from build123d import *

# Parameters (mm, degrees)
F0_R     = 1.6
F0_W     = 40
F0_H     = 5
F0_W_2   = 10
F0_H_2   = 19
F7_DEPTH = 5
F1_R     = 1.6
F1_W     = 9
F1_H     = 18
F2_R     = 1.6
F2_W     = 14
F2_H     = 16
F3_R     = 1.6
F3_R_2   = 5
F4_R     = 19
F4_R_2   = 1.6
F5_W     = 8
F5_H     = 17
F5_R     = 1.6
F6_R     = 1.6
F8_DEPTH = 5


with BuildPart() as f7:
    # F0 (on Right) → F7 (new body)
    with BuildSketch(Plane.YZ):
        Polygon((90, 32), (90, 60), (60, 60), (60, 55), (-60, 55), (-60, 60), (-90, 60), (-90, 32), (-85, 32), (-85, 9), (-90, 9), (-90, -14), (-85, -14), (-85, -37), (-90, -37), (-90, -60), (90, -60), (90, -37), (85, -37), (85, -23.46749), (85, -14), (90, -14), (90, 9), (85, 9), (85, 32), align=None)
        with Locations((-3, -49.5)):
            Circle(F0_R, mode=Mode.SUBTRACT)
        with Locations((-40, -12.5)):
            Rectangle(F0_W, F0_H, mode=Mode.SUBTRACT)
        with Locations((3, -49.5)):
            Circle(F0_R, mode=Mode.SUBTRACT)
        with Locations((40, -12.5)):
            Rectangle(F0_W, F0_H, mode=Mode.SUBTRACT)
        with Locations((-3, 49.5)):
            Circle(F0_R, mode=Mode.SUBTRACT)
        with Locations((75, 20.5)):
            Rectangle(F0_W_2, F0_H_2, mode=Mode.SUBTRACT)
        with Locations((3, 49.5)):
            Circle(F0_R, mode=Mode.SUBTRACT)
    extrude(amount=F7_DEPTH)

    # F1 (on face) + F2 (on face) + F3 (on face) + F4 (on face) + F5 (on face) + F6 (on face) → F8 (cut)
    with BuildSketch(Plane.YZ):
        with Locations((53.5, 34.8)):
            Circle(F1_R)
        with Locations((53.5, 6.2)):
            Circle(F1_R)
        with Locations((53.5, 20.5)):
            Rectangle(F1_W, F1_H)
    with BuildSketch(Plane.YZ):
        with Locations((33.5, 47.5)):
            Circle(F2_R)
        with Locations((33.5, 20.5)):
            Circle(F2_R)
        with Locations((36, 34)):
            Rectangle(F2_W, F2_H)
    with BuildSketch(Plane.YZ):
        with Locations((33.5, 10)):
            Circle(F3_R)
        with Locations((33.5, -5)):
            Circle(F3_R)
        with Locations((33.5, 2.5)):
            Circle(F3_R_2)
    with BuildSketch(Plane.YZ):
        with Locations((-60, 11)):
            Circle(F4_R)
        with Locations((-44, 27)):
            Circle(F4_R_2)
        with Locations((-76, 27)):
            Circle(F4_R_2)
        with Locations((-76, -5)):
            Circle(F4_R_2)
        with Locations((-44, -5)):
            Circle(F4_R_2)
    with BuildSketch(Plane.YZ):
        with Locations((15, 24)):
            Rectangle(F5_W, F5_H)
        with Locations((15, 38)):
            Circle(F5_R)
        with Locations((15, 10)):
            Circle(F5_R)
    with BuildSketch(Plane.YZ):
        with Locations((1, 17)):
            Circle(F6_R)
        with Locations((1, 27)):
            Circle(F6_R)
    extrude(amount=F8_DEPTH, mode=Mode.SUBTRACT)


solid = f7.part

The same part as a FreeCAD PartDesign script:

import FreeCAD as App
import Part
import Sketcher
from FreeCAD import Vector
Q = App.Units.Quantity

doc = App.newDocument("Part")
body = doc.addObject("PartDesign::Body", "Body")

sketch1 = body.newObject("Sketcher::SketchObject", "Sketch")
sketch1.AttachmentSupport = (doc.getObject("YZ_Plane"), [""])
sketch1.MapMode = "FlatFace"
sketch1.addGeometry([
    Part.LineSegment(Vector(90, 32, 0), Vector(90, 60, 0)),
    Part.LineSegment(Vector(90, 60, 0), Vector(60, 60, 0)),
    Part.LineSegment(Vector(60, 60, 0), Vector(60, 55, 0)),
    Part.LineSegment(Vector(60, 55, 0), Vector(-60, 55, 0)),
    Part.LineSegment(Vector(-60, 55, 0), Vector(-60, 60, 0)),
    Part.LineSegment(Vector(-60, 60, 0), Vector(-90, 60, 0)),
    Part.LineSegment(Vector(-90, 60, 0), Vector(-90, 32, 0)),
    Part.LineSegment(Vector(-90, 32, 0), Vector(-85, 32, 0)),
    Part.LineSegment(Vector(-85, 32, 0), Vector(-85, 9, 0)),
    Part.LineSegment(Vector(-85, 9, 0), Vector(-90, 9, 0)),
    Part.LineSegment(Vector(-90, 9, 0), Vector(-90, -14, 0)),
    Part.LineSegment(Vector(-90, -14, 0), Vector(-85, -14, 0)),
    Part.LineSegment(Vector(-85, -14, 0), Vector(-85, -37, 0)),
    Part.LineSegment(Vector(-85, -37, 0), Vector(-90, -37, 0)),
    Part.LineSegment(Vector(-90, -37, 0), Vector(-90, -60, 0)),
    Part.LineSegment(Vector(-90, -60, 0), Vector(90, -60, 0)),
    Part.LineSegment(Vector(90, -60, 0), Vector(90, -37, 0)),
    Part.LineSegment(Vector(90, -37, 0), Vector(85, -37, 0)),
    Part.LineSegment(Vector(85, -37, 0), Vector(85, -14, 0)),
    Part.LineSegment(Vector(85, -14, 0), Vector(90, -14, 0)),
    Part.LineSegment(Vector(90, -14, 0), Vector(90, 9, 0)),
    Part.LineSegment(Vector(90, 9, 0), Vector(85, 9, 0)),
    Part.LineSegment(Vector(85, 9, 0), Vector(85, 32, 0)),
    Part.LineSegment(Vector(85, 32, 0), Vector(90, 32, 0)),
    Part.Circle(Vector(-3, -49.5, 0), Vector(0, 0, 1), 1.6),
    Part.Circle(Vector(3, -49.5, 0), Vector(0, 0, 1), 1.6),
    Part.LineSegment(Vector(-20, -15, 0), Vector(-60, -15, 0)),
    Part.LineSegment(Vector(-60, -15, 0), Vector(-60, -10, 0)),
    Part.LineSegment(Vector(-60, -10, 0), Vector(-20, -10, 0)),
    Part.LineSegment(Vector(-20, -10, 0), Vector(-20, -15, 0)),
    Part.LineSegment(Vector(60, -15, 0), Vector(20, -15, 0)),
    Part.LineSegment(Vector(20, -15, 0), Vector(20, -10, 0)),
    Part.LineSegment(Vector(20, -10, 0), Vector(60, -10, 0)),
    Part.LineSegment(Vector(60, -10, 0), Vector(60, -15, 0)),
    Part.Circle(Vector(-3, 49.5, 0), Vector(0, 0, 1), 1.6),
    Part.Circle(Vector(3, 49.5, 0), Vector(0, 0, 1), 1.6),
    Part.LineSegment(Vector(80, 11, 0), Vector(70, 11, 0)),
    Part.LineSegment(Vector(70, 11, 0), Vector(70, 30, 0)),
    Part.LineSegment(Vector(70, 30, 0), Vector(80, 30, 0)),
    Part.LineSegment(Vector(80, 30, 0), Vector(80, 11, 0)),
], False)
sketch1.addConstraint([
    Sketcher.Constraint("Coincident", 0, 2, 1, 1),
    Sketcher.Constraint("Coincident", 1, 2, 2, 1),
    Sketcher.Constraint("Coincident", 2, 2, 3, 1),
    Sketcher.Constraint("Coincident", 3, 2, 4, 1),
    Sketcher.Constraint("Coincident", 4, 2, 5, 1),
    Sketcher.Constraint("Coincident", 5, 2, 6, 1),
    Sketcher.Constraint("Coincident", 6, 2, 7, 1),
    Sketcher.Constraint("Coincident", 7, 2, 8, 1),
    Sketcher.Constraint("Coincident", 8, 2, 9, 1),
    Sketcher.Constraint("Coincident", 9, 2, 10, 1),
    Sketcher.Constraint("Coincident", 10, 2, 11, 1),
    Sketcher.Constraint("Coincident", 11, 2, 12, 1),
    Sketcher.Constraint("Coincident", 12, 2, 13, 1),
    Sketcher.Constraint("Coincident", 13, 2, 14, 1),
    Sketcher.Constraint("Coincident", 14, 2, 15, 1),
    Sketcher.Constraint("Coincident", 15, 2, 16, 1),
    Sketcher.Constraint("Coincident", 16, 2, 17, 1),
    Sketcher.Constraint("Coincident", 17, 2, 18, 1),
    Sketcher.Constraint("Coincident", 18, 2, 19, 1),
    Sketcher.Constraint("Coincident", 19, 2, 20, 1),
    Sketcher.Constraint("Coincident", 20, 2, 21, 1),
    Sketcher.Constraint("Coincident", 21, 2, 22, 1),
    Sketcher.Constraint("Coincident", 22, 2, 23, 1),
    Sketcher.Constraint("Coincident", 23, 2, 0, 1),
    Sketcher.Constraint("Coincident", 26, 2, 27, 1),
    Sketcher.Constraint("Coincident", 27, 2, 28, 1),
    Sketcher.Constraint("Coincident", 28, 2, 29, 1),
    Sketcher.Constraint("Coincident", 29, 2, 26, 1),
    Sketcher.Constraint("Coincident", 30, 2, 31, 1),
    Sketcher.Constraint("Coincident", 31, 2, 32, 1),
    Sketcher.Constraint("Coincident", 32, 2, 33, 1),
    Sketcher.Constraint("Coincident", 33, 2, 30, 1),
    Sketcher.Constraint("Coincident", 36, 2, 37, 1),
    Sketcher.Constraint("Coincident", 37, 2, 38, 1),
    Sketcher.Constraint("Coincident", 38, 2, 39, 1),
    Sketcher.Constraint("Coincident", 39, 2, 36, 1),
    Sketcher.Constraint("Vertical", 0),
    Sketcher.Constraint("Horizontal", 1),
    Sketcher.Constraint("Vertical", 2),
    Sketcher.Constraint("Horizontal", 3),
    Sketcher.Constraint("Vertical", 4),
    Sketcher.Constraint("Horizontal", 5),
    Sketcher.Constraint("Vertical", 6),
    Sketcher.Constraint("Horizontal", 7),
    Sketcher.Constraint("Vertical", 8),
    Sketcher.Constraint("Horizontal", 9),
    Sketcher.Constraint("Vertical", 10),
    Sketcher.Constraint("Horizontal", 11),
    Sketcher.Constraint("Vertical", 12),
    Sketcher.Constraint("Horizontal", 13),
    Sketcher.Constraint("Vertical", 14),
    Sketcher.Constraint("Horizontal", 15),
    Sketcher.Constraint("Vertical", 16),
    Sketcher.Constraint("Horizontal", 17),
    Sketcher.Constraint("Vertical", 18),
    Sketcher.Constraint("Horizontal", 19),
    Sketcher.Constraint("Vertical", 20),
    Sketcher.Constraint("Horizontal", 21),
    Sketcher.Constraint("Vertical", 22),
    Sketcher.Constraint("Horizontal", 23),
    Sketcher.Constraint("Horizontal", 26),
    Sketcher.Constraint("Vertical", 27),
    Sketcher.Constraint("Horizontal", 28),
    Sketcher.Constraint("Vertical", 29),
    Sketcher.Constraint("Horizontal", 30),
    Sketcher.Constraint("Vertical", 31),
    Sketcher.Constraint("Horizontal", 32),
    Sketcher.Constraint("Vertical", 33),
    Sketcher.Constraint("Horizontal", 36),
    Sketcher.Constraint("Vertical", 37),
    Sketcher.Constraint("Horizontal", 38),
    Sketcher.Constraint("Vertical", 39),
    Sketcher.Constraint("Equal", 24, 25),
    Sketcher.Constraint("Equal", 25, 34),
    Sketcher.Constraint("Equal", 34, 35),
    Sketcher.Constraint("Symmetric", 25, 3, 34, 3, -1, 1),
    Sketcher.Constraint("Symmetric", 24, 3, 35, 3, -1, 1),
    Sketcher.Constraint("Symmetric", 0, 2, 14, 2, -1, 1),
    Sketcher.Constraint("Symmetric", 5, 2, 15, 2, -1, 1),
    Sketcher.Constraint("Symmetric", 24, 3, 25, 3, -2),
    Sketcher.Constraint("Symmetric", 13, 2, 16, 2, -2),
    Sketcher.Constraint("Symmetric", 11, 2, 18, 2, -2),
    Sketcher.Constraint("Symmetric", 9, 2, 20, 2, -2),
    Sketcher.Constraint("Symmetric", 7, 2, 22, 2, -2),
    Sketcher.Constraint("Symmetric", 29, 2, 30, 2, -2),
    Sketcher.Constraint("Symmetric", 27, 2, 32, 2, -2),
    Sketcher.Constraint("Vertical", 6, 2, 9, 2),
    Sketcher.Constraint("Vertical", 8, 2, 11, 2),
    Sketcher.Constraint("Vertical", 4, 2, 26, 2),
    Sketcher.Constraint("Vertical", 2, 2, 32, 2),
    Sketcher.Constraint("Equal", 23, 2),
    Sketcher.Constraint("Equal", 8, 10),
    Sketcher.Constraint("Equal", 10, 12),
    Sketcher.Constraint("Equal", 12, 14),
    Sketcher.Constraint("Equal", 4, 27),
    Sketcher.Constraint("Diameter", 24, Q("3.2 mm")),
    Sketcher.Constraint("DistanceX", 1, 2, 1, 1, Q("30 mm")),
    Sketcher.Constraint("DistanceX", 3, 2, 3, 1, Q("120 mm")),
    Sketcher.Constraint("DistanceX", 7, 1, 7, 2, Q("5 mm")),
    Sketcher.Constraint("DistanceX", 26, 2, 26, 1, Q("40 mm")),
    Sketcher.Constraint("DistanceX", 36, 2, 36, 1, Q("10 mm")),
    Sketcher.Constraint("DistanceY", 0, 1, 0, 2, Q("28 mm")),
    Sketcher.Constraint("DistanceY", 8, 2, 8, 1, Q("23 mm")),
    Sketcher.Constraint("DistanceY", 37, 1, 37, 2, Q("19 mm")),
    Sketcher.Constraint("DistanceX", 24, 3, -1, 1, Q("3 mm")),
    Sketcher.Constraint("DistanceY", 26, 2, -1, 1, Q("15 mm")),
    Sketcher.Constraint("DistanceX", -1, 1, 36, 2, Q("70 mm")),
    Sketcher.Constraint("DistanceY", -1, 1, 36, 2, Q("11 mm")),
    Sketcher.Constraint("DistanceY", 24, 3, 34, 3, Q("99 mm")),
])
pad1 = body.newObject("PartDesign::Pad", "Pad")
pad1.Profile = sketch1
pad1.Length = 5

sketch2 = body.newObject("Sketcher::SketchObject", "Sketch001")
sketch2.AttachmentSupport = (doc.getObject("YZ_Plane"), [""])
sketch2.MapMode = "FlatFace"
sketch2.addGeometry([
    Part.Circle(Vector(53.5, 34.8, 0), Vector(0, 0, 1), 1.6),
    Part.Circle(Vector(53.5, 6.2, 0), Vector(0, 0, 1), 1.6),
    Part.LineSegment(Vector(49, 29.5, 0), Vector(49, 11.5, 0)),
    Part.LineSegment(Vector(49, 11.5, 0), Vector(58, 11.5, 0)),
    Part.LineSegment(Vector(58, 11.5, 0), Vector(58, 29.5, 0)),
    Part.LineSegment(Vector(58, 29.5, 0), Vector(49, 29.5, 0)),
    Part.Circle(Vector(33.5, 47.5, 0), Vector(0, 0, 1), 1.6),
    Part.Circle(Vector(33.5, 20.5, 0), Vector(0, 0, 1), 1.6),
    Part.LineSegment(Vector(29, 42, 0), Vector(29, 26, 0)),
    Part.LineSegment(Vector(29, 26, 0), Vector(43, 26, 0)),
    Part.LineSegment(Vector(43, 26, 0), Vector(43, 42, 0)),
    Part.LineSegment(Vector(43, 42, 0), Vector(29, 42, 0)),
    Part.Circle(Vector(33.5, 10, 0), Vector(0, 0, 1), 1.6),
    Part.Circle(Vector(33.5, -5, 0), Vector(0, 0, 1), 1.6),
    Part.Circle(Vector(33.5, 2.5, 0), Vector(0, 0, 1), 5),
    Part.Circle(Vector(-60, 11, 0), Vector(0, 0, 1), 19),
    Part.Circle(Vector(-44, 27, 0), Vector(0, 0, 1), 1.6),
    Part.Circle(Vector(-76, 27, 0), Vector(0, 0, 1), 1.6),
    Part.Circle(Vector(-76, -5, 0), Vector(0, 0, 1), 1.6),
    Part.Circle(Vector(-44, -5, 0), Vector(0, 0, 1), 1.6),
    Part.LineSegment(Vector(11, 32.5, 0), Vector(11, 15.5, 0)),
    Part.LineSegment(Vector(11, 15.5, 0), Vector(19, 15.5, 0)),
    Part.LineSegment(Vector(19, 15.5, 0), Vector(19, 32.5, 0)),
    Part.LineSegment(Vector(19, 32.5, 0), Vector(11, 32.5, 0)),
    Part.Circle(Vector(15, 38, 0), Vector(0, 0, 1), 1.6),
    Part.Circle(Vector(15, 10, 0), Vector(0, 0, 1), 1.6),
    Part.Circle(Vector(1, 17, 0), Vector(0, 0, 1), 1.6),
    Part.Circle(Vector(1, 27, 0), Vector(0, 0, 1), 1.6),
], False)
sketch2.addConstraint([
    Sketcher.Constraint("Coincident", 2, 2, 3, 1),
    Sketcher.Constraint("Coincident", 3, 2, 4, 1),
    Sketcher.Constraint("Coincident", 4, 2, 5, 1),
    Sketcher.Constraint("Coincident", 5, 2, 2, 1),
    Sketcher.Constraint("Coincident", 8, 2, 9, 1),
    Sketcher.Constraint("Coincident", 9, 2, 10, 1),
    Sketcher.Constraint("Coincident", 10, 2, 11, 1),
    Sketcher.Constraint("Coincident", 11, 2, 8, 1),
    Sketcher.Constraint("Coincident", 20, 2, 21, 1),
    Sketcher.Constraint("Coincident", 21, 2, 22, 1),
    Sketcher.Constraint("Coincident", 22, 2, 23, 1),
    Sketcher.Constraint("Coincident", 23, 2, 20, 1),
    Sketcher.Constraint("Vertical", 2),
    Sketcher.Constraint("Horizontal", 3),
    Sketcher.Constraint("Vertical", 4),
    Sketcher.Constraint("Horizontal", 5),
    Sketcher.Constraint("Vertical", 8),
    Sketcher.Constraint("Horizontal", 9),
    Sketcher.Constraint("Vertical", 10),
    Sketcher.Constraint("Horizontal", 11),
    Sketcher.Constraint("Vertical", 20),
    Sketcher.Constraint("Horizontal", 21),
    Sketcher.Constraint("Vertical", 22),
    Sketcher.Constraint("Horizontal", 23),
    Sketcher.Constraint("Equal", 0, 1),
    Sketcher.Constraint("Equal", 1, 6),
    Sketcher.Constraint("Equal", 6, 7),
    Sketcher.Constraint("Equal", 7, 12),
    Sketcher.Constraint("Equal", 12, 13),
    Sketcher.Constraint("Equal", 13, 16),
    Sketcher.Constraint("Equal", 16, 17),
    Sketcher.Constraint("Equal", 17, 18),
    Sketcher.Constraint("Equal", 18, 19),
    Sketcher.Constraint("Equal", 19, 24),
    Sketcher.Constraint("Equal", 24, 25),
    Sketcher.Constraint("Equal", 25, 26),
    Sketcher.Constraint("Equal", 26, 27),
    Sketcher.Constraint("Horizontal", 16, 3, 17, 3),
    Sketcher.Constraint("Horizontal", 13, 3, 18, 3),
    Sketcher.Constraint("Horizontal", 18, 3, 19, 3),
    Sketcher.Constraint("Horizontal", 12, 3, 25, 3),
    Sketcher.Constraint("Horizontal", 17, 3, 27, 3),
    Sketcher.Constraint("Vertical", 0, 3, 1, 3),
    Sketcher.Constraint("Vertical", 6, 3, 7, 3),
    Sketcher.Constraint("Vertical", 7, 3, 12, 3),
    Sketcher.Constraint("Vertical", 12, 3, 13, 3),
    Sketcher.Constraint("Vertical", 13, 3, 14, 3),
    Sketcher.Constraint("Vertical", 17, 3, 18, 3),
    Sketcher.Constraint("Vertical", 16, 3, 19, 3),
    Sketcher.Constraint("Vertical", 24, 3, 25, 3),
    Sketcher.Constraint("Vertical", 26, 3, 27, 3),
    Sketcher.Constraint("Diameter", 14, Q("10 mm")),
    Sketcher.Constraint("Diameter", 15, Q("38 mm")),
    Sketcher.Constraint("Diameter", 0, Q("3.2 mm")),
    Sketcher.Constraint("DistanceX", 3, 1, 3, 2, Q("9 mm")),
    Sketcher.Constraint("DistanceX", 9, 1, 9, 2, Q("14 mm")),
    Sketcher.Constraint("DistanceX", 21, 1, 21, 2, Q("8 mm")),
    Sketcher.Constraint("DistanceY", 2, 2, 2, 1, Q("18 mm")),
    Sketcher.Constraint("DistanceY", 8, 2, 8, 1, Q("16 mm")),
    Sketcher.Constraint("DistanceY", 20, 2, 20, 1, Q("17 mm")),
    Sketcher.Constraint("DistanceY", -1, 1, 12, 3, Q("10 mm")),
    Sketcher.Constraint("DistanceY", 13, 3, -1, 1, Q("5 mm")),
    Sketcher.Constraint("DistanceX", 15, 3, -1, 1, Q("60 mm")),
    Sketcher.Constraint("DistanceY", -1, 1, 15, 3, Q("11 mm")),
    Sketcher.Constraint("DistanceX", 16, 3, -1, 1, Q("44 mm")),
    Sketcher.Constraint("DistanceY", -1, 1, 16, 3, Q("27 mm")),
    Sketcher.Constraint("DistanceX", 17, 3, -1, 1, Q("76 mm")),
    Sketcher.Constraint("DistanceX", -1, 1, 24, 3, Q("15 mm")),
    Sketcher.Constraint("DistanceY", -1, 1, 24, 3, Q("38 mm")),
    Sketcher.Constraint("DistanceX", -1, 1, 26, 3, Q("1 mm")),
    Sketcher.Constraint("DistanceY", -1, 1, 26, 3, Q("17 mm")),
    Sketcher.Constraint("DistanceX", -1, 1, 2, 2, Q("49 mm")),
    Sketcher.Constraint("DistanceX", -1, 1, 8, 2, Q("29 mm")),
    Sketcher.Constraint("DistanceY", -1, 1, 8, 2, Q("26 mm")),
    Sketcher.Constraint("DistanceX", -1, 1, 20, 2, Q("11 mm")),
    Sketcher.Constraint("DistanceX", 6, 3, 0, 3, Q("20 mm")),
    Sketcher.Constraint("DistanceY", 7, 3, 6, 3, Q("27 mm")),
    Sketcher.Constraint("DistanceY", 14, 3, 7, 3, Q("18 mm")),
    Sketcher.Constraint("DistanceY", 2, 2, 7, 3, Q("9 mm")),
    Sketcher.Constraint("DistanceY", 21, 2, 7, 3, Q("5 mm")),
    Sketcher.Constraint("DistanceX", -1, 1, 0, 3, Q("53.5 mm")),
    Sketcher.Constraint("DistanceY", -1, 1, 0, 3, Q("34.8 mm")),
    Sketcher.Constraint("DistanceY", -1, 1, 1, 3, Q("6.2 mm")),
    Sketcher.Constraint("DistanceY", -1, 1, 6, 3, Q("47.5 mm")),
])
pocket1 = body.newObject("PartDesign::Pocket", "Pocket")
pocket1.Profile = sketch2
pocket1.Length = 5
pocket1.Reversed = True

doc.recompute()
